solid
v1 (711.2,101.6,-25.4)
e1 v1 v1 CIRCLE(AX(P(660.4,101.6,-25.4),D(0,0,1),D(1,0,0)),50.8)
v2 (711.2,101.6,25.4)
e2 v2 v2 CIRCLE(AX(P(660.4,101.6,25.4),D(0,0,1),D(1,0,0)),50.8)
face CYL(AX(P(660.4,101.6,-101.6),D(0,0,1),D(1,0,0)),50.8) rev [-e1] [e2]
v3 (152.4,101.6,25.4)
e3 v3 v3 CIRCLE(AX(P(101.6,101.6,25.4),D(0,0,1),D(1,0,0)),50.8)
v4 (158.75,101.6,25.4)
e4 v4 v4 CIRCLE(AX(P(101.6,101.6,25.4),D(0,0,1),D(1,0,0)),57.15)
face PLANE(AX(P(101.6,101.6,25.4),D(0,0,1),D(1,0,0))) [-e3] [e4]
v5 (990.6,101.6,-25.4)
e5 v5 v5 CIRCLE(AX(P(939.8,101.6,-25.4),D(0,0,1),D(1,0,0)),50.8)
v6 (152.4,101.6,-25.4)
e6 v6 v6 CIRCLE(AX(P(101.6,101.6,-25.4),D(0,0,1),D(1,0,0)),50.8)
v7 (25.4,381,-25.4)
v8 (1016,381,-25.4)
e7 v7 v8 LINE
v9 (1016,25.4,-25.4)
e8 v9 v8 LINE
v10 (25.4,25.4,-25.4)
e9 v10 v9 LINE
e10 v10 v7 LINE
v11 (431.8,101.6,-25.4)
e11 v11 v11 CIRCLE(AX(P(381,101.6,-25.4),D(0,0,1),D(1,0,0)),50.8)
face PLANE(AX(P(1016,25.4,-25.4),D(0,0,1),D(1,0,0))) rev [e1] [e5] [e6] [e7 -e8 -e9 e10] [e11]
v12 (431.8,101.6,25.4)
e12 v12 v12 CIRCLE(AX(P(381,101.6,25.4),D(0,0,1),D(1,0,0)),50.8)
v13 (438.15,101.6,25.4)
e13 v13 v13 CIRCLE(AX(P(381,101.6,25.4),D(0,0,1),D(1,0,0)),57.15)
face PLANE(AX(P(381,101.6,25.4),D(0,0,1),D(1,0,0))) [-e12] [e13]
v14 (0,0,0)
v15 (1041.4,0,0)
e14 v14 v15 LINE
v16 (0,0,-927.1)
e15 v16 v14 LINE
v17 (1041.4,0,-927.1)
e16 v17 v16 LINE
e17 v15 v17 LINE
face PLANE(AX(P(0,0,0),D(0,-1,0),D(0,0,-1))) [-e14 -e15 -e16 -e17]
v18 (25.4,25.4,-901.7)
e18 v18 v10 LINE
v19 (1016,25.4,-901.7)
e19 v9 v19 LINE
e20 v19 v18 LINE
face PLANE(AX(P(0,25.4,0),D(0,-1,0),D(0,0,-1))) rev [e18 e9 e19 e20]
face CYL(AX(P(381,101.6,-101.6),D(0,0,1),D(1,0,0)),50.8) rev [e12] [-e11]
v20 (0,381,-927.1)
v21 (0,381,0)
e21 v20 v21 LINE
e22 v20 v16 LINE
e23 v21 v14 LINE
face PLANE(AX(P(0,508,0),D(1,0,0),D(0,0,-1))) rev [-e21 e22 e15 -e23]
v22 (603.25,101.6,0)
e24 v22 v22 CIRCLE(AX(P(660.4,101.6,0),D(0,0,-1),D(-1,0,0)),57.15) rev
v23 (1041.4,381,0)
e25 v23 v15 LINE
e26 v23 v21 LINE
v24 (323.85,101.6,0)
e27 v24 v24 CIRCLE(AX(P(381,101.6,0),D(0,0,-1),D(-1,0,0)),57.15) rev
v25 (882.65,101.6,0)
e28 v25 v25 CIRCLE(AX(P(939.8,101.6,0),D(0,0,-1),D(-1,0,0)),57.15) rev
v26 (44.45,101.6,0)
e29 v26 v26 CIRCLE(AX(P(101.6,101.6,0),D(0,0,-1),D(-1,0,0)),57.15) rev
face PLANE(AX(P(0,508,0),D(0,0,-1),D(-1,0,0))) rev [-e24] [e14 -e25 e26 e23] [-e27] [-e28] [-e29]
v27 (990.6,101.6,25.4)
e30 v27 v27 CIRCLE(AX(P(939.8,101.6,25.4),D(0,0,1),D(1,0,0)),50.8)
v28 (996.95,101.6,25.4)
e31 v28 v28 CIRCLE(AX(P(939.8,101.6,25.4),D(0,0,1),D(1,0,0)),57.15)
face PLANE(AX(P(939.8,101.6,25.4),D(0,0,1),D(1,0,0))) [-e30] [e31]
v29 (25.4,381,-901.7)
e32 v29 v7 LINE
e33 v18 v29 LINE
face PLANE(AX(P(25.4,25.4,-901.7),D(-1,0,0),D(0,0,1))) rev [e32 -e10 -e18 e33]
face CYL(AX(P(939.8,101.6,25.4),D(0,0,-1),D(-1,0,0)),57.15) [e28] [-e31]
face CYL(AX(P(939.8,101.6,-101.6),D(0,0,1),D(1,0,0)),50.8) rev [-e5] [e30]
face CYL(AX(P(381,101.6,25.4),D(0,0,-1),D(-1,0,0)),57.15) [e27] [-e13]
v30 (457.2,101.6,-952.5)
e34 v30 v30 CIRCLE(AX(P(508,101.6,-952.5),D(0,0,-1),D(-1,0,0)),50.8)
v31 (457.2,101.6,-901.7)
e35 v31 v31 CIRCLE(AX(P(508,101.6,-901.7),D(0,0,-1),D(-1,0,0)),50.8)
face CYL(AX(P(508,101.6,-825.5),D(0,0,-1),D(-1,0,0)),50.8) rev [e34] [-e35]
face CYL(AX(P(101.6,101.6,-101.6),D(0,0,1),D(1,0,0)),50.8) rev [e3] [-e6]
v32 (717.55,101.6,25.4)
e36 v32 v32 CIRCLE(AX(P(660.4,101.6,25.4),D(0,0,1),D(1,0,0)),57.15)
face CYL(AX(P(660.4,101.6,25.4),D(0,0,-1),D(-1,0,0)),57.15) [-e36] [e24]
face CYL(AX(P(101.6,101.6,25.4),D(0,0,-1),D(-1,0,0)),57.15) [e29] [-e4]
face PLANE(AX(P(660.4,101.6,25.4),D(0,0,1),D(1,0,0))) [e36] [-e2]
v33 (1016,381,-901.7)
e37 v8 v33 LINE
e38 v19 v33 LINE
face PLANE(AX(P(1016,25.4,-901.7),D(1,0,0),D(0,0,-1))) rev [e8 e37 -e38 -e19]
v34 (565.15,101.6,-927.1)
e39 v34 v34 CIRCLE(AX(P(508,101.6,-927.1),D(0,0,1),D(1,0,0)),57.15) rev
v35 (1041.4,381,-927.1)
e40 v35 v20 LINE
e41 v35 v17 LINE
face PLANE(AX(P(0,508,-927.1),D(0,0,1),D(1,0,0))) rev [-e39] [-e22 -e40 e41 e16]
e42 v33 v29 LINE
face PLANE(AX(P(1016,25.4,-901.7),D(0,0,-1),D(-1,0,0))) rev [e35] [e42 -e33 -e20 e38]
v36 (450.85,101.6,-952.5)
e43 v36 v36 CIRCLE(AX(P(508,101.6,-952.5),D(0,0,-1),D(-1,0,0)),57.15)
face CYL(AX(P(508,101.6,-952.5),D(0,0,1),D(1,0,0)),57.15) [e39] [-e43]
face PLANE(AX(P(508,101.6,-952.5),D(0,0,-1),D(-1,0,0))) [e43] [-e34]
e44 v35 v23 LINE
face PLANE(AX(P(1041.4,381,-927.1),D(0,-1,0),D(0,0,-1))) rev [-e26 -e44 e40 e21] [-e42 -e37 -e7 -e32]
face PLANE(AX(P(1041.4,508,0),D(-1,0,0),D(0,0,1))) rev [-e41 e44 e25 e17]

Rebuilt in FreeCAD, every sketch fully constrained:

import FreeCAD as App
import Part
import Sketcher
Q = App.Units.Quantity

doc = App.newDocument("Part")
params = doc.addObject("Spreadsheet::Sheet", "Params")
for row, (alias, value) in enumerate([
    ("sketch1_width", "41 in"),
    ("sketch1_height", "36.5 in"),
    ("pad1_length", "20 in"),
    ("sketch2_diameter", "4.5 in"),
    ("pad2_length", "1 in"),
    ("sketch3_diameter", "4.5 in"),
    ("pad3_length", "1 in"),
    ("sketch4_width", "39 in"),
    ("sketch4_height", "34.5 in"),
    ("pocket1_length", "19 in"),
    ("sketch5_diameter", "4 in"),
    ("pocket2_length", "5 in"),
    ("sketch6_diameter", "4 in"),
    ("pocket3_length", "5 in"),
    ("sketch7_width", "5 in"),
    ("sketch7_height", "36.5 in"),
    ("pocket4_length", "41 in"),
], start=1):
    params.set(f"A{row}", alias)
    params.set(f"B{row}", "=" + value)
    params.setAlias(f"B{row}", alias)

body = doc.addObject("PartDesign::Body", "Body")

sketch1 = body.newObject("Sketcher::SketchObject", "Sketch")
sketch1.AttachmentSupport = (doc.getObject("XZ_Plane"), [""])
sketch1.MapMode = "FlatFace"
sketch1.addGeometry([
    Part.LineSegment(App.Vector(0, -927.1, 0), App.Vector(0, 0, 0)),
    Part.LineSegment(App.Vector(0, 0, 0), App.Vector(1041.4, 0, 0)),
    Part.LineSegment(App.Vector(1041.4, 0, 0), App.Vector(1041.4, -927.1, 0)),
    Part.LineSegment(App.Vector(1041.4, -927.1, 0), App.Vector(0, -927.1, 0)),
], False)
sketch1.addConstraint([
    Sketcher.Constraint("Coincident", 0, 2, 1, 1),
    Sketcher.Constraint("Coincident", 1, 2, 2, 1),
    Sketcher.Constraint("Coincident", 2, 2, 3, 1),
    Sketcher.Constraint("Coincident", 3, 2, 0, 1),
    Sketcher.Constraint("Vertical", 0),
    Sketcher.Constraint("Horizontal", 1),
    Sketcher.Constraint("Vertical", 2),
    Sketcher.Constraint("Horizontal", 3),
    Sketcher.Constraint("Coincident", 0, 2, -1, 1),
    Sketcher.Constraint("DistanceX", 1, 1, 1, 2, Q("41 in")),
    Sketcher.Constraint("DistanceY", 0, 1, 0, 2, Q("36.5 in")),
])
sketch1.setExpression("Constraints[9]", "Params.sketch1_width")
sketch1.setExpression("Constraints[10]", "Params.sketch1_height")
pad1 = body.newObject("PartDesign::Pad", "Pad")
pad1.Profile = sketch1
pad1.setExpression("Length", "Params.pad1_length")
pad1.Reversed = True

sketch2 = body.newObject("Sketcher::SketchObject", "Sketch001")
sketch2.AttachmentSupport = (doc.getObject("XY_Plane"), [""])
sketch2.MapMode = "FlatFace"
sketch2.addGeometry([
    Part.Circle(App.Vector(101.6, 101.6, 0), App.Vector(0, 0, 1), 57.15),
    Part.Circle(App.Vector(381, 101.6, 0), App.Vector(0, 0, 1), 57.15),
    Part.Circle(App.Vector(660.4, 101.6, 0), App.Vector(0, 0, 1), 57.15),
    Part.Circle(App.Vector(939.8, 101.6, 0), App.Vector(0, 0, 1), 57.15),
], False)
sketch2.addConstraint([
    Sketcher.Constraint("Equal", 0, 1),
    Sketcher.Constraint("Equal", 1, 2),
    Sketcher.Constraint("Equal", 2, 3),
    Sketcher.Constraint("Horizontal", 0, 3, 1, 3),
    Sketcher.Constraint("Horizontal", 1, 3, 2, 3),
    Sketcher.Constraint("Horizontal", 2, 3, 3, 3),
    Sketcher.Constraint("Diameter", 0, Q("4.5 in")),
    Sketcher.Constraint("DistanceX", -1, 1, 0, 3, Q("4 in")),
    Sketcher.Constraint("DistanceY", -1, 1, 0, 3, Q("4 in")),
    Sketcher.Constraint("DistanceX", -1, 1, 1, 3, Q("15 in")),
    Sketcher.Constraint("DistanceX", -1, 1, 2, 3, Q("26 in")),
    Sketcher.Constraint("DistanceX", -1, 1, 3, 3, Q("37 in")),
])
sketch2.setExpression("Constraints[6]", "Params.sketch2_diameter")
pad2 = body.newObject("PartDesign::Pad", "Pad001")
pad2.Profile = sketch2
pad2.setExpression("Length", "Params.pad2_length")

sketch3 = body.newObject("Sketcher::SketchObject", "Sketch002")
sketch3.AttachmentSupport = (doc.getObject("XY_Plane"), [""])
sketch3.MapMode = "FlatFace"
sketch3.AttachmentOffset = App.Placement(App.Vector(0, 0, -36.5 * 25.4), App.Rotation())
sketch3.addGeometry(Part.Circle(App.Vector(508, 101.6, 0), App.Vector(0, 0, 1), 57.15), False)
sketch3.addConstraint([
    Sketcher.Constraint("Diameter", 0, Q("4.5 in")),
    Sketcher.Constraint("DistanceX", -1, 1, 0, 3, Q("20 in")),
    Sketcher.Constraint("DistanceY", -1, 1, 0, 3, Q("4 in")),
])
sketch3.setExpression("Constraints[0]", "Params.sketch3_diameter")
pad3 = body.newObject("PartDesign::Pad", "Pad002")
pad3.Profile = sketch3
pad3.setExpression("Length", "Params.pad3_length")
pad3.Reversed = True

sketch4 = body.newObject("Sketcher::SketchObject", "Sketch003")
sketch4.AttachmentSupport = (doc.getObject("XZ_Plane"), [""])
sketch4.MapMode = "FlatFace"
sketch4.AttachmentOffset = App.Placement(App.Vector(0, 0, -20 * 25.4), App.Rotation())
sketch4.addGeometry([
    Part.LineSegment(App.Vector(25.4, -901.7, 0), App.Vector(25.4, -25.4, 0)),
    Part.LineSegment(App.Vector(25.4, -25.4, 0), App.Vector(1016, -25.4, 0)),
    Part.LineSegment(App.Vector(1016, -25.4, 0), App.Vector(1016, -901.7, 0)),
    Part.LineSegment(App.Vector(1016, -901.7, 0), App.Vector(25.4, -901.7, 0)),
], False)
sketch4.addConstraint([
    Sketcher.Constraint("Coincident", 0, 2, 1, 1),
    Sketcher.Constraint("Coincident", 1, 2, 2, 1),
    Sketcher.Constraint("Coincident", 2, 2, 3, 1),
    Sketcher.Constraint("Coincident", 3, 2, 0, 1),
    Sketcher.Constraint("Vertical", 0),
    Sketcher.Constraint("Horizontal", 1),
    Sketcher.Constraint("Vertical", 2),
    Sketcher.Constraint("Horizontal", 3),
    Sketcher.Constraint("DistanceX", 1, 1, 1, 2, Q("39 in")),
    Sketcher.Constraint("DistanceY", 0, 1, 0, 2, Q("34.5 in")),
    Sketcher.Constraint("DistanceX", -1, 1, 0, 2, Q("1 in")),
    Sketcher.Constraint("DistanceY", 0, 2, -1, 1, Q("1 in")),
])
sketch4.setExpression("Constraints[8]", "Params.sketch4_width")
sketch4.setExpression("Constraints[9]", "Params.sketch4_height")
pocket1 = body.newObject("PartDesign::Pocket", "Pocket")
pocket1.Profile = sketch4
pocket1.setExpression("Length", "Params.pocket1_length")
pocket1.Reversed = True

sketch5 = body.newObject("Sketcher::SketchObject", "Sketch004")
sketch5.AttachmentSupport = (doc.getObject("XY_Plane"), [""])
sketch5.MapMode = "FlatFace"
sketch5.AttachmentOffset = App.Placement(App.Vector(0, 0, 1 * 25.4), App.Rotation())
sketch5.addGeometry([
    Part.Circle(App.Vector(101.6, 101.6, 0), App.Vector(0, 0, 1), 50.8),
    Part.Circle(App.Vector(381, 101.6, 0), App.Vector(0, 0, 1), 50.8),
    Part.Circle(App.Vector(660.4, 101.6, 0), App.Vector(0, 0, 1), 50.8),
    Part.Circle(App.Vector(939.8, 101.6, 0), App.Vector(0, 0, 1), 50.8),
], False)
sketch5.addConstraint([
    Sketcher.Constraint("Equal", 0, 1),
    Sketcher.Constraint("Equal", 1, 2),
    Sketcher.Constraint("Equal", 2, 3),
    Sketcher.Constraint("Horizontal", 0, 3, 1, 3),
    Sketcher.Constraint("Horizontal", 1, 3, 2, 3),
    Sketcher.Constraint("Horizontal", 2, 3, 3, 3),
    Sketcher.Constraint("Diameter", 0, Q("4 in")),
    Sketcher.Constraint("DistanceX", -1, 1, 0, 3, Q("4 in")),
    Sketcher.Constraint("DistanceY", -1, 1, 0, 3, Q("4 in")),
    Sketcher.Constraint("DistanceX", -1, 1, 1, 3, Q("15 in")),
    Sketcher.Constraint("DistanceX", -1, 1, 2, 3, Q("26 in")),
    Sketcher.Constraint("DistanceX", -1, 1, 3, 3, Q("37 in")),
])
sketch5.setExpression("Constraints[6]", "Params.sketch5_diameter")
pocket2 = body.newObject("PartDesign::Pocket", "Pocket001")
pocket2.Profile = sketch5
pocket2.setExpression("Length", "Params.pocket2_length")

sketch6 = body.newObject("Sketcher::SketchObject", "Sketch005")
sketch6.AttachmentSupport = (doc.getObject("XY_Plane"), [""])
sketch6.MapMode = "FlatFace"
sketch6.AttachmentOffset = App.Placement(App.Vector(0, 0, -37.5 * 25.4), App.Rotation())
sketch6.addGeometry(Part.Circle(App.Vector(508, 101.6, 0), App.Vector(0, 0, 1), 50.8), False)
sketch6.addConstraint([
    Sketcher.Constraint("Diameter", 0, Q("4 in")),
    Sketcher.Constraint("DistanceX", -1, 1, 0, 3, Q("20 in")),
    Sketcher.Constraint("DistanceY", -1, 1, 0, 3, Q("4 in")),
])
sketch6.setExpression("Constraints[0]", "Params.sketch6_diameter")
pocket3 = body.newObject("PartDesign::Pocket", "Pocket002")
pocket3.Profile = sketch6
pocket3.setExpression("Length", "Params.pocket3_length")
pocket3.Reversed = True

sketch7 = body.newObject("Sketcher::SketchObject", "Sketch006")
sketch7.AttachmentSupport = (doc.getObject("YZ_Plane"), [""])
sketch7.MapMode = "FlatFace"
sketch7.addGeometry([
    Part.LineSegment(App.Vector(508, -927.1, 0), App.Vector(381, -927.1, 0)),
    Part.LineSegment(App.Vector(381, -927.1, 0), App.Vector(381, 0, 0)),
    Part.LineSegment(App.Vector(381, 0, 0), App.Vector(508, 0, 0)),
    Part.LineSegment(App.Vector(508, 0, 0), App.Vector(508, -927.1, 0)),
], False)
sketch7.addConstraint([
    Sketcher.Constraint("Coincident", 0, 2, 1, 1),
    Sketcher.Constraint("Coincident", 1, 2, 2, 1),
    Sketcher.Constraint("Coincident", 2, 2, 3, 1),
    Sketcher.Constraint("Coincident", 3, 2, 0, 1),
    Sketcher.Constraint("Horizontal", 0),
    Sketcher.Constraint("Vertical", 1),
    Sketcher.Constraint("Horizontal", 2),
    Sketcher.Constraint("Vertical", 3),
    Sketcher.Constraint("PointOnObject", 1, 2, -1),
    Sketcher.Constraint("DistanceX", 0, 2, 0, 1, Q("5 in")),
    Sketcher.Constraint("DistanceY", 1, 1, 1, 2, Q("36.5 in")),
    Sketcher.Constraint("DistanceX", -1, 1, 0, 2, Q("15 in")),
])
sketch7.setExpression("Constraints[9]", "Params.sketch7_width")
sketch7.setExpression("Constraints[10]", "Params.sketch7_height")
pocket4 = body.newObject("PartDesign::Pocket", "Pocket003")
pocket4.Profile = sketch7
pocket4.setExpression("Length", "Params.pocket4_length")
pocket4.Reversed = True

doc.recompute()
